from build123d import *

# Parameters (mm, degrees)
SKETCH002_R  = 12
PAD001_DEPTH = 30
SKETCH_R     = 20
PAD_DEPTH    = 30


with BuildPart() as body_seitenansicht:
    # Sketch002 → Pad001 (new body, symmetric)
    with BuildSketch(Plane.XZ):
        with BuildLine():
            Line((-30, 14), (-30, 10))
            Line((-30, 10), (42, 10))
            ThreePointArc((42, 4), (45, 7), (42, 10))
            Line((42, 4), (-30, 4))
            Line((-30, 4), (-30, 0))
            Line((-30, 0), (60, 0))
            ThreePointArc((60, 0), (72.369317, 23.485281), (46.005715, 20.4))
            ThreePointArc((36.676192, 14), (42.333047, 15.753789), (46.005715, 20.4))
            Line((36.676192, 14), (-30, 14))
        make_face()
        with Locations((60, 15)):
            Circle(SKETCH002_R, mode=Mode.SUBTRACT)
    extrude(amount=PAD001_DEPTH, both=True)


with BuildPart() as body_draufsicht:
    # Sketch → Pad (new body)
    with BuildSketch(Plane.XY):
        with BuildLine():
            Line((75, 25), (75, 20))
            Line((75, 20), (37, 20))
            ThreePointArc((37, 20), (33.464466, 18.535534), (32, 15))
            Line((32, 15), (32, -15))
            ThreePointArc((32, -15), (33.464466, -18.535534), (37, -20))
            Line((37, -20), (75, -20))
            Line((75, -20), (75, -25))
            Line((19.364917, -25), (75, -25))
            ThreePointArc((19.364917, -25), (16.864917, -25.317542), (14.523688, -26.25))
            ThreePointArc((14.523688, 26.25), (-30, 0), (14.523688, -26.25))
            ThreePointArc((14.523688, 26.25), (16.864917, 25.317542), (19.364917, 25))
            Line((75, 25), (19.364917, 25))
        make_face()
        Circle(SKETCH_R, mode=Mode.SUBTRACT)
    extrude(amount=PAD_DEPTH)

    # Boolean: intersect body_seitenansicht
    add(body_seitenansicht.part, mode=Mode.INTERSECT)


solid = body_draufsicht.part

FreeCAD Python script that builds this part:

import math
import FreeCAD as App
import Part
import Sketcher
Q = App.Units.Quantity

doc = App.newDocument("Part")
body = doc.addObject("PartDesign::Body", "Body")

sketch1 = body.newObject("Sketcher::SketchObject", "Sketch")
sketch1.AttachmentSupport = (doc.getObject("XZ_Plane"), [""])
sketch1.MapMode = "FlatFace"
sketch1.addGeometry(Part.LineSegment(App.Vector(-30, 14, 0), App.Vector(-30, 10, 0)), False)
sketch1.addGeometry(Part.LineSegment(App.Vector(-30, 10, 0), App.Vector(42, 10, 0)), False)
sketch1.addGeometry(Part.ArcOfCircle(Part.Circle(App.Vector(42, 7, 0), App.Vector(0, 0, 1), 3), math.radians(-90), math.radians(90)), False)
sketch1.addGeometry(Part.LineSegment(App.Vector(42, 4, 0), App.Vector(-30, 4, 0)), False)
sketch1.addGeometry(Part.LineSegment(App.Vector(-30, 4, 0), App.Vector(-30, 0, 0)), False)
sketch1.addGeometry(Part.LineSegment(App.Vector(-30, 0, 0), App.Vector(60, 0, 0)), False)
sketch1.addGeometry(Part.ArcOfCircle(Part.Circle(App.Vector(60, 15, 0), App.Vector(0, 0, 1), 15), math.radians(-90), math.radians(159)), False)
sketch1.addGeometry(Part.ArcOfCircle(Part.Circle(App.Vector(36.7, 24, 0), App.Vector(0, 0, 1), 10), math.radians(-90), math.radians(-21)), False)
sketch1.addGeometry(Part.LineSegment(App.Vector(36.7, 14, 0), App.Vector(-30, 14, 0)), False)
sketch1.addGeometry(Part.Circle(App.Vector(60, 15, 0), App.Vector(0, 0, 1), 12), False)
sketch1.addConstraint(Sketcher.Constraint("Coincident", 0, 2, 1, 1))
sketch1.addConstraint(Sketcher.Constraint("Tangent", 1, 2, 2, 2))
sketch1.addConstraint(Sketcher.Constraint("Tangent", 2, 1, 3, 1))
sketch1.addConstraint(Sketcher.Constraint("Coincident", 3, 2, 4, 1))
sketch1.addConstraint(Sketcher.Constraint("Coincident", 4, 2, 5, 1))
sketch1.addConstraint(Sketcher.Constraint("Tangent", 5, 2, 6, 1))
sketch1.addConstraint(Sketcher.Constraint("Tangent", 6, 2, 7, 2))
sketch1.addConstraint(Sketcher.Constraint("Tangent", 7, 1, 8, 1))
sketch1.addConstraint(Sketcher.Constraint("Coincident", 8, 2, 0, 1))
sketch1.addConstraint(Sketcher.Constraint("Vertical", 0))
sketch1.addConstraint(Sketcher.Constraint("Horizontal", 1))
sketch1.addConstraint(Sketcher.Constraint("Horizontal", 3))
sketch1.addConstraint(Sketcher.Constraint("Vertical", 4))
sketch1.addConstraint(Sketcher.Constraint("Horizontal", 5))
sketch1.addConstraint(Sketcher.Constraint("Horizontal", 8))
sketch1.addConstraint(Sketcher.Constraint("Coincident", 9, 3, 6, 3))
sketch1.addConstraint(Sketcher.Constraint("PointOnObject", 4, 2, -1))
sketch1.addConstraint(Sketcher.Constraint("Vertical", 0, 2, 3, 2))
sketch1.addConstraint(Sketcher.Constraint("Equal", 0, 4))
sketch1.addConstraint(Sketcher.Constraint("Diameter", 9, Q("24 mm")))
sketch1.addConstraint(Sketcher.Constraint("Radius", 2, Q("3 mm")))
sketch1.addConstraint(Sketcher.Constraint("Radius", 6, Q("15 mm")))
sketch1.addConstraint(Sketcher.Constraint("Radius", 7, Q("9.999999 mm")))
sketch1.addConstraint(Sketcher.Constraint("DistanceX", 1, 1, 1, 2, Q("72 mm")))
sketch1.addConstraint(Sketcher.Constraint("DistanceX", 5, 1, 5, 2, Q("90 mm")))
sketch1.addConstraint(Sketcher.Constraint("DistanceY", 0, 2, 0, 1, Q("4 mm")))
sketch1.addConstraint(Sketcher.Constraint("DistanceX", -1, 1, 2, 3, Q("42 mm")))
pad1 = body.newObject("PartDesign::Pad", "Pad")
pad1.Profile = sketch1
pad1.Length = 60
pad1.Midplane = True
body2 = doc.addObject("PartDesign::Body", "Body001")

sketch2 = body2.newObject("Sketcher::SketchObject", "Sketch001")
sketch2.AttachmentSupport = (doc.getObject("XY_Plane001"), [""])
sketch2.MapMode = "FlatFace"
sketch2.addGeometry(Part.LineSegment(App.Vector(75, 20, 0), App.Vector(75, 25, 0)), False)
sketch2.addGeometry(Part.LineSegment(App.Vector(75, 25, 0), App.Vector(19.4, 25, 0)), False)
sketch2.addGeometry(Part.ArcOfCircle(Part.Circle(App.Vector(19.4, 35, 0), App.Vector(0, 0, 1), 10), math.radians(-119), math.radians(-90)), False)
sketch2.addGeometry(Part.ArcOfCircle(Part.Circle(App.Vector(0, 0, 0), App.Vector(0, 0, 1), 30), math.radians(61), math.radians(299)), False)
sketch2.addGeometry(Part.ArcOfCircle(Part.Circle(App.Vector(19.4, -35, 0), App.Vector(0, 0, 1), 10), math.radians(90), math.radians(119)), False)
sketch2.addGeometry(Part.LineSegment(App.Vector(19.4, -25, 0), App.Vector(75, -25, 0)), False)
sketch2.addGeometry(Part.LineSegment(App.Vector(75, -25, 0), App.Vector(75, -20, 0)), False)
sketch2.addGeometry(Part.LineSegment(App.Vector(75, -20, 0), App.Vector(37, -20, 0)), False)
sketch2.addGeometry(Part.ArcOfCircle(Part.Circle(App.Vector(37, -15, 0), App.Vector(0, 0, 1), 5), math.radians(180), math.radians(270)), False)
sketch2.addGeometry(Part.LineSegment(App.Vector(32, -15, 0), App.Vector(32, 15, 0)), False)
sketch2.addGeometry(Part.ArcOfCircle(Part.Circle(App.Vector(37, 15, 0), App.Vector(0, 0, 1), 5), math.radians(90), math.radians(180)), False)
sketch2.addGeometry(Part.LineSegment(App.Vector(37, 20, 0), App.Vector(75, 20, 0)), False)
sketch2.addGeometry(Part.Circle(App.Vector(0, 0, 0), App.Vector(0, 0, 1), 20), False)
sketch2.addConstraint(Sketcher.Constraint("Coincident", 0, 2, 1, 1))
sketch2.addConstraint(Sketcher.Constraint("Tangent", 1, 2, 2, 2))
sketch2.addConstraint(Sketcher.Constraint("Tangent", 2, 1, 3, 1))
sketch2.addConstraint(Sketcher.Constraint("Tangent", 3, 2, 4, 2))
sketch2.addConstraint(Sketcher.Constraint("Tangent", 4, 1, 5, 1))
sketch2.addConstraint(Sketcher.Constraint("Coincident", 5, 2, 6, 1))
sketch2.addConstraint(Sketcher.Constraint("Coincident", 6, 2, 7, 1))
sketch2.addConstraint(Sketcher.Constraint("Tangent", 7, 2, 8, 2))
sketch2.addConstraint(Sketcher.Constraint("Tangent", 8, 1, 9, 1))
sketch2.addConstraint(Sketcher.Constraint("Tangent", 9, 2, 10, 2))
sketch2.addConstraint(Sketcher.Constraint("Tangent", 10, 1, 11, 1))
sketch2.addConstraint(Sketcher.Constraint("Coincident", 11, 2, 0, 1))
sketch2.addConstraint(Sketcher.Constraint("Vertical", 0))
sketch2.addConstraint(Sketcher.Constraint("Horizontal", 1))
sketch2.addConstraint(Sketcher.Constraint("Horizontal", 5))
sketch2.addConstraint(Sketcher.Constraint("Vertical", 6))
sketch2.addConstraint(Sketcher.Constraint("Horizontal", 7))
sketch2.addConstraint(Sketcher.Constraint("Vertical", 9))
sketch2.addConstraint(Sketcher.Constraint("Horizontal", 11))
sketch2.addConstraint(Sketcher.Constraint("Coincident", 3, 3, -1, 1))
sketch2.addConstraint(Sketcher.Constraint("Coincident", 12, 3, -1, 1))
sketch2.addConstraint(Sketcher.Constraint("Equal", 2, 4))
sketch2.addConstraint(Sketcher.Constraint("Equal", 8, 10))
sketch2.addConstraint(Sketcher.Constraint("Symmetric", 0, 2, 5, 2, -1))
sketch2.addConstraint(Sketcher.Constraint("Equal", 0, 6))
sketch2.addConstraint(Sketcher.Constraint("Diameter", 12, Q("40 mm")))
sketch2.addConstraint(Sketcher.Constraint("Radius", 3, Q("30 mm")))
sketch2.addConstraint(Sketcher.Constraint("Radius", 8, Q("5 mm")))
sketch2.addConstraint(Sketcher.Constraint("DistanceX", 7, 2, 7, 1, Q("38 mm")))
sketch2.addConstraint(Sketcher.Constraint("DistanceY", 0, 1, 0, 2, Q("5 mm")))
sketch2.addConstraint(Sketcher.Constraint("DistanceY", 9, 1, 9, 2, Q("30 mm")))
sketch2.addConstraint(Sketcher.Constraint("DistanceX", -1, 1, 8, 3, Q("37 mm")))
sketch2.addConstraint(Sketcher.Constraint("DistanceY", -1, 1, 2, 1, Q("26.25 mm")))
pad2 = body2.newObject("PartDesign::Pad", "Pad001")
pad2.Profile = sketch2
pad2.Length = 30
doc.recompute()

boolean = body2.newObject("PartDesign::Boolean", "Boolean")
boolean.Type = "Common"
boolean.addObjects([body])

doc.recompute()
